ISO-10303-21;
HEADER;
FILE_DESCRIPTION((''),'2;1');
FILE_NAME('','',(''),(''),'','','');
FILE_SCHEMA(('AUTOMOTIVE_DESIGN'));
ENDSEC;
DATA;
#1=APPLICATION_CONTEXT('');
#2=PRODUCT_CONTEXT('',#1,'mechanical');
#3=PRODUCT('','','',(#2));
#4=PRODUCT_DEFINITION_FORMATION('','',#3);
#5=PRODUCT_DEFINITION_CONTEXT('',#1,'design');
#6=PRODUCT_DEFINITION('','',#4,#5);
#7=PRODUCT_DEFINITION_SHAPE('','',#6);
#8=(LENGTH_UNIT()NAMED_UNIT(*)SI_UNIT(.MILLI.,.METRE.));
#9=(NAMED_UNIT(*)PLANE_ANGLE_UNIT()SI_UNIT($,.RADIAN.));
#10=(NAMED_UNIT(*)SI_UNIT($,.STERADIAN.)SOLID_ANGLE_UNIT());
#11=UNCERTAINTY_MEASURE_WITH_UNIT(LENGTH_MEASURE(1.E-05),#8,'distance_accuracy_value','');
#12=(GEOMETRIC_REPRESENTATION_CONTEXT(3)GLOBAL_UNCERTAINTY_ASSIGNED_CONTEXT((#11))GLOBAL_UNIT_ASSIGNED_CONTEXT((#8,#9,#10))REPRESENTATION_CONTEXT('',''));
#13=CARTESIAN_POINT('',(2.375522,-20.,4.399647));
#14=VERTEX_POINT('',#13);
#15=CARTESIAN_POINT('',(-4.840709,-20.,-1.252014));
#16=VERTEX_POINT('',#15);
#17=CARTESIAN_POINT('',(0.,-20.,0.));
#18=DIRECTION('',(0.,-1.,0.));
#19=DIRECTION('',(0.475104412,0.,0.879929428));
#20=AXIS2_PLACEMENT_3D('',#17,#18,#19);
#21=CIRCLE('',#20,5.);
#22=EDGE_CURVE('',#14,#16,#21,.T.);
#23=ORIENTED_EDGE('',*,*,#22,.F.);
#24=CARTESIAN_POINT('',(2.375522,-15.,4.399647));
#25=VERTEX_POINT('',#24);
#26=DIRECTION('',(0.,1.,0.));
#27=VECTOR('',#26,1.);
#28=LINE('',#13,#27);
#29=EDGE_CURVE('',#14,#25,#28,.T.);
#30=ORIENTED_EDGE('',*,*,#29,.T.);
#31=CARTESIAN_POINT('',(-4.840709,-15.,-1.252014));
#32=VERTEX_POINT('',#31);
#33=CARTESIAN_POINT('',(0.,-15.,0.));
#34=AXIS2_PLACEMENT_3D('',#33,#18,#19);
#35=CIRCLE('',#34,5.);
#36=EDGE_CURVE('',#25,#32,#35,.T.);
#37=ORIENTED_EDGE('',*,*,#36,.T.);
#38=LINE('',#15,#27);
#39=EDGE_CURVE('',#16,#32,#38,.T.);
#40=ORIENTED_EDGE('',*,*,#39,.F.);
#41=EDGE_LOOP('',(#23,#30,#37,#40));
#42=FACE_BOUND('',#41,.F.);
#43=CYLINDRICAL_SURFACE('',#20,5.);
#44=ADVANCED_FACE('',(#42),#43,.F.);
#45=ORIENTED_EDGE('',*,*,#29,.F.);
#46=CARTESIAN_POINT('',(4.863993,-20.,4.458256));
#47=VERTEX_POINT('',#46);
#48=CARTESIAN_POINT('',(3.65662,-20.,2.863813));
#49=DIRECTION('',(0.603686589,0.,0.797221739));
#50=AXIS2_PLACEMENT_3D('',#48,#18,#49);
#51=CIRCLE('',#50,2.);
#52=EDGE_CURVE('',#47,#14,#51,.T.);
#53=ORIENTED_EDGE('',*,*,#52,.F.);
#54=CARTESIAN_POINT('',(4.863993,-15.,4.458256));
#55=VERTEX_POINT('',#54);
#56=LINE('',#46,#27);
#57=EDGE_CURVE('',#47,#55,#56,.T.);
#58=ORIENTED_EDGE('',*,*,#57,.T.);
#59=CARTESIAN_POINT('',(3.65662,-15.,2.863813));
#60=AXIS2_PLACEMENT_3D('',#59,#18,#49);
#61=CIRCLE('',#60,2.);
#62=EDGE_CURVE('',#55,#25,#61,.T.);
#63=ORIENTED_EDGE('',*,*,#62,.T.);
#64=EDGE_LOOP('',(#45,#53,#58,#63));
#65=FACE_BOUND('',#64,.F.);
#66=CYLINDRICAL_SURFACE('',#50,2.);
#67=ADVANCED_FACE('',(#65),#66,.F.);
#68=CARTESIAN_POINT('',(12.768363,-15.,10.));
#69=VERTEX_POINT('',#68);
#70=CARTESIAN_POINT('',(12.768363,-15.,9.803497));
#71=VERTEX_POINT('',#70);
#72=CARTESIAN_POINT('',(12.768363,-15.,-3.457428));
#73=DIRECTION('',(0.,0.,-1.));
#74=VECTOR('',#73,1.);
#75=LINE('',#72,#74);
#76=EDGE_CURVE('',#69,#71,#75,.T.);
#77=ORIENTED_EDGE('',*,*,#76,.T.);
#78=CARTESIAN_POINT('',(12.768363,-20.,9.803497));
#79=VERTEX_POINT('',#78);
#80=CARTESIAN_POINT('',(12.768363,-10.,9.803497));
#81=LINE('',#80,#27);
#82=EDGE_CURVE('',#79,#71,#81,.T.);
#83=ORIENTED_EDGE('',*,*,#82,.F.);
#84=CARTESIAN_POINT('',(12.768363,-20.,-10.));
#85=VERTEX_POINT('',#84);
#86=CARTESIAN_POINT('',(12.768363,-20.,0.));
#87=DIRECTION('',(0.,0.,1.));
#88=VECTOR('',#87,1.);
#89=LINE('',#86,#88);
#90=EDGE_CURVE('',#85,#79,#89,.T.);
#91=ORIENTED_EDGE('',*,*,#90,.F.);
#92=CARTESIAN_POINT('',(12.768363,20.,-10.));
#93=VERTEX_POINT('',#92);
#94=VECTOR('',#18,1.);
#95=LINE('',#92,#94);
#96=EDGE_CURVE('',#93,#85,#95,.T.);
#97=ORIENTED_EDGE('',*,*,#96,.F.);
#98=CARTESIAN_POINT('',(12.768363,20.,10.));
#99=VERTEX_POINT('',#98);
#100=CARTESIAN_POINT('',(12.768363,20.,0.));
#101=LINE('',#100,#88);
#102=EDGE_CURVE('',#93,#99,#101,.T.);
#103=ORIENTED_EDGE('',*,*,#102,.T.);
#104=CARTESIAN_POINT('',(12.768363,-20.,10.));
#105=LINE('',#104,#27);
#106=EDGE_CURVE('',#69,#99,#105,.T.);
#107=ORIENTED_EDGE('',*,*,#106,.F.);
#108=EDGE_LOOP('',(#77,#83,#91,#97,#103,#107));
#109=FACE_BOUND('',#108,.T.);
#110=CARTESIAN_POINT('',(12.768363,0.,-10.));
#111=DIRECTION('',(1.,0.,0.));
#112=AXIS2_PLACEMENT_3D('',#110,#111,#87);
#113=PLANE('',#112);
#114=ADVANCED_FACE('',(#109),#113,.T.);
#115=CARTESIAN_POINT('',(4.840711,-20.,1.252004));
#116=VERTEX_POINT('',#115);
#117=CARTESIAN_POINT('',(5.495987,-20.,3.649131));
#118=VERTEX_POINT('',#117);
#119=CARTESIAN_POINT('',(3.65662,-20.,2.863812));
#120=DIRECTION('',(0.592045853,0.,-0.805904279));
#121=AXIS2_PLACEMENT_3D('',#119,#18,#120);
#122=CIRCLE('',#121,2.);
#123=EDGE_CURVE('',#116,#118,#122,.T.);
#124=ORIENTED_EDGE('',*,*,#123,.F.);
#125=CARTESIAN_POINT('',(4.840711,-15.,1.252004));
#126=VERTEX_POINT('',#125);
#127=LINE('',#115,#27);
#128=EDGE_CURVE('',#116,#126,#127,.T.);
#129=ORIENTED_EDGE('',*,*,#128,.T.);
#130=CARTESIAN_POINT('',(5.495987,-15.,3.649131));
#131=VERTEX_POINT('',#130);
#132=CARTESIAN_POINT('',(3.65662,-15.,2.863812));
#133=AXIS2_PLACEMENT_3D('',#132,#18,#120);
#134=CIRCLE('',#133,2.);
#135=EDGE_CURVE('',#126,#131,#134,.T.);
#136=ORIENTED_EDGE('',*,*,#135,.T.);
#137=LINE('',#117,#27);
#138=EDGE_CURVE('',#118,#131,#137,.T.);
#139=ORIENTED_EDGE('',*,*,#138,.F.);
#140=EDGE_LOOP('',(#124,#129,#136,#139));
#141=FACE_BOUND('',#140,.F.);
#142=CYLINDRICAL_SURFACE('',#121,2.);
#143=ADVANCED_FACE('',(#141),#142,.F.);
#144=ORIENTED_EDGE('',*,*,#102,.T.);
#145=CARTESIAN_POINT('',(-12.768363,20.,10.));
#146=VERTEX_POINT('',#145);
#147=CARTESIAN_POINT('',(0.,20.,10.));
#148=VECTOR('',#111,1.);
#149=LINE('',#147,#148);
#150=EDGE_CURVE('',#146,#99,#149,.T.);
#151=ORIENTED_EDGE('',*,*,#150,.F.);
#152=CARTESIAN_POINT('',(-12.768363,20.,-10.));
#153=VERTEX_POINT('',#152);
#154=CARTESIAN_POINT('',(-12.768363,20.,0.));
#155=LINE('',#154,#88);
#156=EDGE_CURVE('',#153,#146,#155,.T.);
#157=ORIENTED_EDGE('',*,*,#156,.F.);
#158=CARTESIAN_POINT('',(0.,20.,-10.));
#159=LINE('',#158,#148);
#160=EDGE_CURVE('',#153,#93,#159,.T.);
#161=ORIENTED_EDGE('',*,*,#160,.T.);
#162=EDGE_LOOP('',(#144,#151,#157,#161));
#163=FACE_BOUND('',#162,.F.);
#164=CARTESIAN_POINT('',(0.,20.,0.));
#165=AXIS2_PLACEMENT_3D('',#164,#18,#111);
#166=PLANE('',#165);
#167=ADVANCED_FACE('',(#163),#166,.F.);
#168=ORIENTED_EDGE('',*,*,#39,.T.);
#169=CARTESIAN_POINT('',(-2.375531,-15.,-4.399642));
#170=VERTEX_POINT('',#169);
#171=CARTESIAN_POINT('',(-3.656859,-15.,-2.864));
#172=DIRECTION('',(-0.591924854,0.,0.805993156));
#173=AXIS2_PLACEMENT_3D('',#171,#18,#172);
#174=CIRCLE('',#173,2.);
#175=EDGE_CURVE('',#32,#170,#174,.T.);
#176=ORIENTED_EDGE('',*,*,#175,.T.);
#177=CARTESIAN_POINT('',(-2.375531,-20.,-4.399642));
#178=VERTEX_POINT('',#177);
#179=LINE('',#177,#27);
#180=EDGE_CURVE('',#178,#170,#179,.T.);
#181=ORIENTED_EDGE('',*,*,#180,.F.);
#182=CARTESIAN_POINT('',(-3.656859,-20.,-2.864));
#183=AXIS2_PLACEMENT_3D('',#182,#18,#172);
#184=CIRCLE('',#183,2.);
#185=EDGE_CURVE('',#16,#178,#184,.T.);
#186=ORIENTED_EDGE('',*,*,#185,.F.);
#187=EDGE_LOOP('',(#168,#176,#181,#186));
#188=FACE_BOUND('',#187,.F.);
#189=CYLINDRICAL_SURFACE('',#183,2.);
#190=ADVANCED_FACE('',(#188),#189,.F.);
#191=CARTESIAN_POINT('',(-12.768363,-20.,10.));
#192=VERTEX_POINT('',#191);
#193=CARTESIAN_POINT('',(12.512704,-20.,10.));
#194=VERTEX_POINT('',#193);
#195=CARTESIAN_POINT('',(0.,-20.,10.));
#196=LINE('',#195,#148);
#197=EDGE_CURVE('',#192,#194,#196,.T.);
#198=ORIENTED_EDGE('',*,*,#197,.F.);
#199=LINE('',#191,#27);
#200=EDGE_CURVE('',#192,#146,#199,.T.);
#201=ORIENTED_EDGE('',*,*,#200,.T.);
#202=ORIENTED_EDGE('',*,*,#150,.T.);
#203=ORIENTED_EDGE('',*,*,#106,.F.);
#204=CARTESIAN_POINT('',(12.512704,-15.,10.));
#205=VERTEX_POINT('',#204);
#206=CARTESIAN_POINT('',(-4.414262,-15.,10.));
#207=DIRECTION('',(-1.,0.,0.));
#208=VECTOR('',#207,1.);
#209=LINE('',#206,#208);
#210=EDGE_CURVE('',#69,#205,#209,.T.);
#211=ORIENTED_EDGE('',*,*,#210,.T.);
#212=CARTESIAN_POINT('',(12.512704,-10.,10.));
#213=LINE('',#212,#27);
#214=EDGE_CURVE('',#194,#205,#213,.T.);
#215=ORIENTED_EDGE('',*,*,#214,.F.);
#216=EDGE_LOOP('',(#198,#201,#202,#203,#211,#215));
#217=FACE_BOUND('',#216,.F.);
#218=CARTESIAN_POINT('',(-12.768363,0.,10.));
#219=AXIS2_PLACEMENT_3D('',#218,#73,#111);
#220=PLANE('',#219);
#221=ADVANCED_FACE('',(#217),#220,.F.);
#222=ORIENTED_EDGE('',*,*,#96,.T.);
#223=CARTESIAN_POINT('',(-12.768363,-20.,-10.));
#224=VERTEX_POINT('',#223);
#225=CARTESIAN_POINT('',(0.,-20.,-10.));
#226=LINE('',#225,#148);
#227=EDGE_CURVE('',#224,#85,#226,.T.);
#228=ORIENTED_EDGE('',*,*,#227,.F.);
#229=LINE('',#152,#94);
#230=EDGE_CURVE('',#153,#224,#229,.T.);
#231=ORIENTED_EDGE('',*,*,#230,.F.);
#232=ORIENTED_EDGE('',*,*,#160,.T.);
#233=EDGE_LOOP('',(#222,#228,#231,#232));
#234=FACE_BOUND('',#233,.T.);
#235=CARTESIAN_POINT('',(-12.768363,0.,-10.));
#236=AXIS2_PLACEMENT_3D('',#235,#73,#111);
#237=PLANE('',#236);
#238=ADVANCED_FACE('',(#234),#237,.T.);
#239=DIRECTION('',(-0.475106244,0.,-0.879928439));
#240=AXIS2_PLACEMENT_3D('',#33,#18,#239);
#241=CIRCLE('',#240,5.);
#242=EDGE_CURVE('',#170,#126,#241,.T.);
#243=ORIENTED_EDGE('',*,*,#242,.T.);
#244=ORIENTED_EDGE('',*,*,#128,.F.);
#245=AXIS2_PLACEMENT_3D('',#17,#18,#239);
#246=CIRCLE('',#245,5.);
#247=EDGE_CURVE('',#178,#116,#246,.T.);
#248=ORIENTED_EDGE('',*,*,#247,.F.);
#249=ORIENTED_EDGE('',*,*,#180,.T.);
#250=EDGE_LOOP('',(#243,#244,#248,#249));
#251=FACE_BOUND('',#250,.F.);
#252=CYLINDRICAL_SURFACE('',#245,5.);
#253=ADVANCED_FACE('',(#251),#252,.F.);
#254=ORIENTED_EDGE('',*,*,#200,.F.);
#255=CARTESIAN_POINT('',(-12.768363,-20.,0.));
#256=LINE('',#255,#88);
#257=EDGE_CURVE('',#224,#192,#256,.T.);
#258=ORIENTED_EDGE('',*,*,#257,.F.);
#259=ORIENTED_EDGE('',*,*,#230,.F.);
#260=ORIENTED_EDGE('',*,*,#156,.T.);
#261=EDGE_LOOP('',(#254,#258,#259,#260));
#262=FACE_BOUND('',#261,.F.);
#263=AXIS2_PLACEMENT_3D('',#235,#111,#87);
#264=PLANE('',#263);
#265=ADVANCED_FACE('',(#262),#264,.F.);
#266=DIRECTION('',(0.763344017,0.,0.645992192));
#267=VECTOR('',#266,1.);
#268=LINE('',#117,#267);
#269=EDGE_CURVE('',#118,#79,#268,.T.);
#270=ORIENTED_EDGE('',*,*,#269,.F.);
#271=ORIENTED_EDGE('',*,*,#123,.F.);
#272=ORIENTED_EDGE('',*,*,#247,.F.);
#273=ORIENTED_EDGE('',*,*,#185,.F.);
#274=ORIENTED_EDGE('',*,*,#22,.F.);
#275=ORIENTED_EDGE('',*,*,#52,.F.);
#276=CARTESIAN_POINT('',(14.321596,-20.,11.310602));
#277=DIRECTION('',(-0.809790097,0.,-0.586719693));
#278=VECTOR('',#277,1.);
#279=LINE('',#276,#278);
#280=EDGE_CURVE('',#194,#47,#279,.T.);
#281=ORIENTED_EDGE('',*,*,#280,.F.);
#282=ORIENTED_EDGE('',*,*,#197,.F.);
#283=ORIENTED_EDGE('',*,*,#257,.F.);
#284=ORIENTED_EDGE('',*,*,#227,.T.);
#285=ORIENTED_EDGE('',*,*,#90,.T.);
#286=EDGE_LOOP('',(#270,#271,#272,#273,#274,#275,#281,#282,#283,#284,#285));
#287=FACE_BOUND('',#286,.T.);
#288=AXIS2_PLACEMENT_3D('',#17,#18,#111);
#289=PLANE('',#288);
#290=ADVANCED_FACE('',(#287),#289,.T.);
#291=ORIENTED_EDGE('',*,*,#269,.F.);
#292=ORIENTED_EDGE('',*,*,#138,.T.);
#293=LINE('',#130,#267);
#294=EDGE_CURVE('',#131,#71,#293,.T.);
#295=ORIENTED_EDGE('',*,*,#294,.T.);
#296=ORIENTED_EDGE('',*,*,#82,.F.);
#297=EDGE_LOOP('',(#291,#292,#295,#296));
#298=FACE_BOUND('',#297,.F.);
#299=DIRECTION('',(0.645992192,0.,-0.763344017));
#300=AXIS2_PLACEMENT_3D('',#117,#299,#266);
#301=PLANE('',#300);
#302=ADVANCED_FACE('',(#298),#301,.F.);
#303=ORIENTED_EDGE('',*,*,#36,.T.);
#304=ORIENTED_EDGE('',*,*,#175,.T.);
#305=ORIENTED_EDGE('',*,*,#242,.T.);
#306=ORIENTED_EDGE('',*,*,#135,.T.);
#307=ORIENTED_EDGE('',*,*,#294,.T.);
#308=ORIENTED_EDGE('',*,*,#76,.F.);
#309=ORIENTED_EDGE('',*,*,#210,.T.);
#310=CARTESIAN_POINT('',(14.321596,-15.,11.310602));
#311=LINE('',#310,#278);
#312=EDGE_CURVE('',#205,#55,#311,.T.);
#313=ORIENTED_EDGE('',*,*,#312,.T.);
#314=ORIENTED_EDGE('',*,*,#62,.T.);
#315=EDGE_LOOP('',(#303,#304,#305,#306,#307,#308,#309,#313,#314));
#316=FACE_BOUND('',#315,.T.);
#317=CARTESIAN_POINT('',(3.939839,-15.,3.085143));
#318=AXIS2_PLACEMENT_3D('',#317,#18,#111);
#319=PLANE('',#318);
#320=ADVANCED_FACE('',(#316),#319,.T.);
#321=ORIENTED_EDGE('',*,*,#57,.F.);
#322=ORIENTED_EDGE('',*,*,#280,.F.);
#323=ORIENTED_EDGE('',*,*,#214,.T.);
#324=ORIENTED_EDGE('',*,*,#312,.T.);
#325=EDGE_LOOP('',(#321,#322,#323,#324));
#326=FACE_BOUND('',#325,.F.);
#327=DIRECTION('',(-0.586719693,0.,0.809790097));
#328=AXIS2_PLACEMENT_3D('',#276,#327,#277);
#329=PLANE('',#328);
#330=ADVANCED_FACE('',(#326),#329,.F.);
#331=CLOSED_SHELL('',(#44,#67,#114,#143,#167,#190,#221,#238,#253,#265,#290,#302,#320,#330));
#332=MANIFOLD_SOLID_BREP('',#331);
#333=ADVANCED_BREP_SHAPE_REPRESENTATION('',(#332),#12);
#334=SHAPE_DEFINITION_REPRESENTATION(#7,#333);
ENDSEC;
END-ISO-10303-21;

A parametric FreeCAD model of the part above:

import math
import FreeCAD as App
import Part
import Sketcher
from FreeCAD import Vector
Q = App.Units.Quantity


def add_polygon(sketch, points):
    """Adds a closed chain of lines whose ends are joined by coincident constraints."""
    first, n = sketch.GeometryCount, len(points)
    for a, b in zip(points, points[1:] + points[:1]):
        sketch.addGeometry(Part.LineSegment(App.Vector(*a, 0), App.Vector(*b, 0)), False)
    for i in range(n):
        sketch.addConstraint(Sketcher.Constraint("Coincident", first + i, 2, first + (i + 1) % n, 1))

doc = App.newDocument("Part")
params = doc.addObject("Spreadsheet::Sheet", "Params")
for row, (alias, value) in enumerate([
    ("sketch1_height", "20 mm"),
    ("pad1_length", "40 mm"),
    ("sketch2_radius", "2 mm"),
    ("sketch2_radius2", "5 mm"),
    ("pocket1_length", "5 mm"),
], start=1):
    params.set(f"A{row}", alias)
    params.set(f"B{row}", "=" + value)
    params.setAlias(f"B{row}", alias)

body = doc.addObject("PartDesign::Body", "Body")

# Sketch on XZ plane
sketch1 = body.newObject("Sketcher::SketchObject", "Sketch")
sketch1.AttachmentSupport = (doc.getObject("XZ_Plane"), [""])
sketch1.MapMode = "FlatFace"
add_polygon(sketch1, [(-12.768363, 10), (-12.768363, -10), (12.768363, -10), (12.768363, 10)])  # lines 0-3
sketch1.addConstraint([
    Sketcher.Constraint("Vertical", 0),
    Sketcher.Constraint("Horizontal", 1),
    Sketcher.Constraint("Vertical", 2),
    Sketcher.Constraint("Horizontal", 3),
    Sketcher.Constraint("Symmetric", 0, 2, 2, 2, -1, 1),
    Sketcher.Constraint("DistanceY", 0, 2, 0, 1, Q("20 mm")),
    Sketcher.Constraint("DistanceX", 1, 1, 1, 2, Q("25.536726 mm")),
])
sketch1.setExpression("Constraints[9]", "Params.sketch1_height")
pad1 = body.newObject("PartDesign::Pad", "Pad")
pad1.Profile = sketch1
pad1.setExpression("Length", "Params.pad1_length")
pad1.Midplane = True

# Sketch on XZ plane
sketch2 = body.newObject("Sketcher::SketchObject", "Sketch001")
sketch2.AttachmentSupport = (doc.getObject("XZ_Plane"), [""])
sketch2.MapMode = "FlatFace"
sketch2.AttachmentOffset = App.Placement(Vector(0, 0, 20), App.Rotation())
sketch2.addGeometry([
    Part.ArcOfCircle(Part.Circle(Vector(3.65662, 2.863813, 0), Vector(0, 0, 1), 2), math.radians(52.865611), math.radians(129.832775)),  # 0
    Part.ArcOfCircle(Part.Circle(Vector(0, 0, 0), Vector(0, 0, 1), 5), math.radians(61.633851), math.radians(194.501346)),  # 1
    Part.ArcOfCircle(Part.Circle(Vector(-3.656859, -2.864, 0), Vector(0, 0, 1), 2), math.radians(126.293721), math.radians(309.841375)),  # 2
    Part.ArcOfCircle(Part.Circle(Vector(0, 0, 0), Vector(0, 0, 1), 5), math.radians(-118.366268), math.radians(14.501233)),  # 3
    Part.ArcOfCircle(Part.Circle(Vector(3.65662, 2.863812, 0), Vector(0, 0, 1), 2), math.radians(-53.697677), math.radians(23.120082)),  # 4
    Part.LineSegment(Vector(5.495987, 3.649131, 0), Vector(14.416598, 11.198342, 0)),  # 5
    Part.LineSegment(Vector(14.416598, 11.198342, 0), Vector(14.321596, 11.310602, 0)),  # 6
    Part.LineSegment(Vector(14.321596, 11.310602, 0), Vector(4.863993, 4.458256, 0)),  # 7
], False)
sketch2.addConstraint([
    Sketcher.Constraint("Coincident", 0, 2, 1, 1),
    Sketcher.Constraint("Coincident", 1, 2, 2, 1),
    Sketcher.Constraint("Coincident", 2, 2, 3, 1),
    Sketcher.Constraint("Coincident", 3, 2, 4, 1),
    Sketcher.Constraint("Coincident", 4, 2, 5, 1),
    Sketcher.Constraint("Coincident", 5, 2, 6, 1),
    Sketcher.Constraint("Coincident", 6, 2, 7, 1),
    Sketcher.Constraint("Coincident", 7, 2, 0, 1),
    Sketcher.Constraint("Coincident", 1, 3, -1, 1),
    Sketcher.Constraint("Coincident", 3, 3, -1, 1),
    Sketcher.Constraint("Coincident", 4, 3, 0, 3),
    Sketcher.Constraint("Equal", 0, 2),
    Sketcher.Constraint("Equal", 1, 3),
    Sketcher.Constraint("Equal", 2, 4),
    Sketcher.Constraint("Perpendicular", 5, 6),
    Sketcher.Constraint("Radius", 0, Q("2 mm")),
    Sketcher.Constraint("Radius", 1, Q("5 mm")),
    Sketcher.Constraint("DistanceY", 2, 3, -1, 1, Q("2.864 mm")),
    Sketcher.Constraint("DistanceY", -1, 1, 6, 2, Q("11.310602 mm")),
    Sketcher.Constraint("Distance", 7, Q("11.67908 mm")),
    Sketcher.Constraint("DistanceX", -1, 1, 0, 3, Q("3.65662 mm")),
    Sketcher.Constraint("DistanceX", 2, 3, -1, 1, Q("3.656859 mm")),
    Sketcher.Constraint("DistanceX", -1, 1, 3, 2, Q("4.840711 mm")),
    Sketcher.Constraint("DistanceY", -1, 1, 4, 2, Q("3.649131 mm")),
    Sketcher.Constraint("DistanceX", 4, 2, 5, 2, Q("8.920611 mm")),
    Sketcher.Constraint("DistanceY", 4, 2, 5, 2, Q("7.549211 mm")),
])
sketch2.setExpression("Constraints[15]", "Params.sketch2_radius")
sketch2.setExpression("Constraints[16]", "Params.sketch2_radius2")
pocket1 = body.newObject("PartDesign::Pocket", "Pocket")
pocket1.Profile = sketch2
pocket1.setExpression("Length", "Params.pocket1_length")

doc.recompute()
